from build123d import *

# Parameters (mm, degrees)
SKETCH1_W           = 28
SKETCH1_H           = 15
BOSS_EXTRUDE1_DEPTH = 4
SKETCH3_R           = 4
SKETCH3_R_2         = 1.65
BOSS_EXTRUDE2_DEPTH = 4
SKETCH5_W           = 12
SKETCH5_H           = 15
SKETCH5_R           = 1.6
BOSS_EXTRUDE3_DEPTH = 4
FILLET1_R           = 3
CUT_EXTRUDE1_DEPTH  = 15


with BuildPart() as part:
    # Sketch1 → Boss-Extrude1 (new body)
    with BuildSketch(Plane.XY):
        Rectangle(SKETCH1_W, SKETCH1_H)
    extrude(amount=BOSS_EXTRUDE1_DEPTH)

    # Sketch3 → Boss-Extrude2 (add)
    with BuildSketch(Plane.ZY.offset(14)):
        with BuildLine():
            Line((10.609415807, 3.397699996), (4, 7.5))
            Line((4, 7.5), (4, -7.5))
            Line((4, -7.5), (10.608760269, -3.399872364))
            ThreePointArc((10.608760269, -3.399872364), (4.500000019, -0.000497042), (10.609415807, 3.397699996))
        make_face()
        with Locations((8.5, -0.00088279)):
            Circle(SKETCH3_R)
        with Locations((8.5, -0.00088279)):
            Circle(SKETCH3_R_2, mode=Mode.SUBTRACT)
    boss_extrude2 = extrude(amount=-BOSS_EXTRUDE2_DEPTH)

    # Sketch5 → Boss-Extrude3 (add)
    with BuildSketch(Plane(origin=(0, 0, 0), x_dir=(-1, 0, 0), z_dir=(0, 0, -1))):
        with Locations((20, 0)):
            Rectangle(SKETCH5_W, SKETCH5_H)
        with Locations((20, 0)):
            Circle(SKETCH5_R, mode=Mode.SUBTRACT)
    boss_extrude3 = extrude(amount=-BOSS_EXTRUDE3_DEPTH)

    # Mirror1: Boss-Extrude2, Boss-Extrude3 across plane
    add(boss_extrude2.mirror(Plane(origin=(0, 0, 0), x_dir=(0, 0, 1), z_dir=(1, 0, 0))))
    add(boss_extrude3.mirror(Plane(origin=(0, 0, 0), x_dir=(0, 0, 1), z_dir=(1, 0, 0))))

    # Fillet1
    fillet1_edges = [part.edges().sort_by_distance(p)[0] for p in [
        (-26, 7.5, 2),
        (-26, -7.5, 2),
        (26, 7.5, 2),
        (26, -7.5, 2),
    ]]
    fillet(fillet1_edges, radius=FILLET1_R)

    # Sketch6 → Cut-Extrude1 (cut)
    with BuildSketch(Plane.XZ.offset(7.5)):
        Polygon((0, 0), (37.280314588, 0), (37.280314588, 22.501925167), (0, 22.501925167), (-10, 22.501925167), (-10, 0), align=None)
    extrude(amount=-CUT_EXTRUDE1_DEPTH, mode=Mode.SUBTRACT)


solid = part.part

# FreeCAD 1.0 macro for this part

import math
import FreeCAD as App
import Part
import Sketcher
from FreeCAD import Vector


def edges_at(feature, points):
    """Names of the edges that pass closest to the given points."""
    edges = feature.Shape.Edges
    near = lambda p: min(range(len(edges)), key=lambda i: edges[i].distToShape(Part.Vertex(*p))[0])
    return sorted({f"Edge{near(p) + 1}" for p in points})

doc = App.newDocument("Part")
body = doc.addObject("PartDesign::Body", "Body")

sketch1 = body.newObject("Sketcher::SketchObject", "Sketch")
sketch1.AttachmentSupport = (doc.getObject("XY_Plane"), [""])
sketch1.MapMode = "FlatFace"
sketch1.addGeometry([
    Part.LineSegment(Vector(-14, 7.5, 0), Vector(-14, -7.5, 0)),
    Part.LineSegment(Vector(-14, -7.5, 0), Vector(14, -7.5, 0)),
    Part.LineSegment(Vector(14, -7.5, 0), Vector(14, 7.5, 0)),
    Part.LineSegment(Vector(14, 7.5, 0), Vector(-14, 7.5, 0)),
], False)
sketch1.addConstraint([
    Sketcher.Constraint("Coincident", 0, 2, 1, 1),
    Sketcher.Constraint("Coincident", 1, 2, 2, 1),
    Sketcher.Constraint("Coincident", 2, 2, 3, 1),
    Sketcher.Constraint("Coincident", 3, 2, 0, 1),
    Sketcher.Constraint("Vertical", 0),
    Sketcher.Constraint("Horizontal", 1),
    Sketcher.Constraint("Vertical", 2),
    Sketcher.Constraint("Horizontal", 3),
    Sketcher.Constraint("Symmetric", 0, 2, 2, 2, -1, 1),
    Sketcher.Constraint("DistanceX", 1, 1, 1, 2, 28.0),
    Sketcher.Constraint("DistanceY", 0, 2, 0, 1, 15.0),
])
pad1 = body.newObject("PartDesign::Pad", "Pad")
pad1.Profile = sketch1
pad1.Length = 4

sketch2 = body.newObject("Sketcher::SketchObject", "Sketch001")
sketch2.AttachmentSupport = (doc.getObject("YZ_Plane"), [""])
sketch2.MapMode = "FlatFace"
sketch2.AttachmentOffset = App.Placement(Vector(0, 0, -14), App.Rotation())
sketch2.addGeometry([
    Part.LineSegment(Vector(3.3977, 10.609416, 0), Vector(7.5, 4, 0)),
    Part.LineSegment(Vector(7.5, 4, 0), Vector(-7.5, 4, 0)),
    Part.LineSegment(Vector(-7.5, 4, 0), Vector(-3.399872, 10.60876, 0)),
    Part.ArcOfCircle(Part.Circle(Vector(-0.000883, 8.5, 0), Vector(0, 0, 1), 4), math.radians(31.826846), math.radians(148.184205)),
    Part.Circle(Vector(-0.000883, 8.5, 0), Vector(0, 0, 1), 1.65),
], False)
sketch2.addConstraint([
    Sketcher.Constraint("Coincident", 0, 2, 1, 1),
    Sketcher.Constraint("Coincident", 1, 2, 2, 1),
    Sketcher.Constraint("Tangent", 2, 2, 3, 2),
    Sketcher.Constraint("Tangent", 3, 1, 0, 1),
    Sketcher.Constraint("Horizontal", 1),
    Sketcher.Constraint("Coincident", 4, 3, 3, 3),
    Sketcher.Constraint("Radius", 3, 4.0),
    Sketcher.Constraint("Diameter", 4, 3.3),
    Sketcher.Constraint("DistanceX", 1, 2, 1, 1, 15.0),
    Sketcher.Constraint("DistanceY", -1, 1, 0, 2, 4.0),
    Sketcher.Constraint("DistanceY", -1, 1, 3, 3, 8.5),
    Sketcher.Constraint("DistanceX", -1, 1, 0, 2, 7.5),
    Sketcher.Constraint("DistanceX", -1, 1, 3, 1, 3.3977),
])
pad2 = body.newObject("PartDesign::Pad", "Pad001")
pad2.Profile = sketch2
pad2.Length = 4

sketch3 = body.newObject("Sketcher::SketchObject", "Sketch002")
sketch3.AttachmentSupport = (doc.getObject("XY_Plane"), [""])
sketch3.MapMode = "FlatFace"
sketch3.addGeometry([
    Part.LineSegment(Vector(-14, 7.5, 0), Vector(-14, -7.5, 0)),
    Part.LineSegment(Vector(-14, -7.5, 0), Vector(-26, -7.5, 0)),
    Part.LineSegment(Vector(-26, -7.5, 0), Vector(-26, 7.5, 0)),
    Part.LineSegment(Vector(-26, 7.5, 0), Vector(-14, 7.5, 0)),
    Part.Circle(Vector(-20, 0, 0), Vector(0, 0, 1), 1.6),
], False)
sketch3.addConstraint([
    Sketcher.Constraint("Coincident", 0, 2, 1, 1),
    Sketcher.Constraint("Coincident", 1, 2, 2, 1),
    Sketcher.Constraint("Coincident", 2, 2, 3, 1),
    Sketcher.Constraint("Coincident", 3, 2, 0, 1),
    Sketcher.Constraint("Vertical", 0),
    Sketcher.Constraint("Horizontal", 1),
    Sketcher.Constraint("Vertical", 2),
    Sketcher.Constraint("Horizontal", 3),
    Sketcher.Constraint("PointOnObject", 4, 3, -1),
    Sketcher.Constraint("Diameter", 4, 3.2),
    Sketcher.Constraint("DistanceX", 1, 2, 1, 1, 12.0),
    Sketcher.Constraint("DistanceY", 0, 2, 0, 1, 15.0),
    Sketcher.Constraint("DistanceX", 4, 3, -1, 1, 20.0),
    Sketcher.Constraint("DistanceX", 0, 2, -1, 1, 14.0),
    Sketcher.Constraint("DistanceY", 0, 2, -1, 1, 7.5),
])
pad3 = body.newObject("PartDesign::Pad", "Pad002")
pad3.Profile = sketch3
pad3.Length = 4
doc.recompute()

mirrored = body.newObject("PartDesign::Mirrored", "Mirrored")
mirrored.Originals = [pad2, pad3]
mirrored.MirrorPlane = (doc.getObject("YZ_Plane"), [""])
body.Tip = mirrored
doc.recompute()

fillet = body.newObject("PartDesign::Fillet", "Fillet")
fillet.Base = (mirrored, edges_at(mirrored, [
    (-26, 7.5, 2),
    (-26, -7.5, 2),
    (26, 7.5, 2),
    (26, -7.5, 2),
]))
fillet.Radius = 3

sketch4 = body.newObject("Sketcher::SketchObject", "Sketch003")
sketch4.AttachmentSupport = (doc.getObject("XZ_Plane"), [""])
sketch4.MapMode = "FlatFace"
sketch4.AttachmentOffset = App.Placement(Vector(0, 0, 7.5), App.Rotation())
sketch4.addGeometry([
    Part.LineSegment(Vector(37.280315, 0, 0), Vector(37.280315, 22.501925, 0)),
    Part.LineSegment(Vector(37.280315, 22.501925, 0), Vector(-10, 22.501925, 0)),
    Part.LineSegment(Vector(-10, 22.501925, 0), Vector(-10, 0, 0)),
    Part.LineSegment(Vector(-10, 0, 0), Vector(37.280315, 0, 0)),
], False)
sketch4.addConstraint([
    Sketcher.Constraint("Coincident", 0, 2, 1, 1),
    Sketcher.Constraint("Coincident", 1, 2, 2, 1),
    Sketcher.Constraint("Coincident", 2, 2, 3, 1),
    Sketcher.Constraint("Coincident", 3, 2, 0, 1),
    Sketcher.Constraint("Vertical", 0),
    Sketcher.Constraint("Horizontal", 1),
    Sketcher.Constraint("Vertical", 2),
    Sketcher.Constraint("Horizontal", 3),
    Sketcher.Constraint("PointOnObject", 2, 2, -1),
    Sketcher.Constraint("DistanceX", 1, 2, -1, 1, 10.0),
    Sketcher.Constraint("DistanceX", 1, 2, 1, 1, 47.280315),
    Sketcher.Constraint("DistanceY", 0, 1, 0, 2, 22.501925),
])
pocket1 = body.newObject("PartDesign::Pocket", "Pocket")
pocket1.Profile = sketch4
pocket1.Length = 15

doc.recompute()
